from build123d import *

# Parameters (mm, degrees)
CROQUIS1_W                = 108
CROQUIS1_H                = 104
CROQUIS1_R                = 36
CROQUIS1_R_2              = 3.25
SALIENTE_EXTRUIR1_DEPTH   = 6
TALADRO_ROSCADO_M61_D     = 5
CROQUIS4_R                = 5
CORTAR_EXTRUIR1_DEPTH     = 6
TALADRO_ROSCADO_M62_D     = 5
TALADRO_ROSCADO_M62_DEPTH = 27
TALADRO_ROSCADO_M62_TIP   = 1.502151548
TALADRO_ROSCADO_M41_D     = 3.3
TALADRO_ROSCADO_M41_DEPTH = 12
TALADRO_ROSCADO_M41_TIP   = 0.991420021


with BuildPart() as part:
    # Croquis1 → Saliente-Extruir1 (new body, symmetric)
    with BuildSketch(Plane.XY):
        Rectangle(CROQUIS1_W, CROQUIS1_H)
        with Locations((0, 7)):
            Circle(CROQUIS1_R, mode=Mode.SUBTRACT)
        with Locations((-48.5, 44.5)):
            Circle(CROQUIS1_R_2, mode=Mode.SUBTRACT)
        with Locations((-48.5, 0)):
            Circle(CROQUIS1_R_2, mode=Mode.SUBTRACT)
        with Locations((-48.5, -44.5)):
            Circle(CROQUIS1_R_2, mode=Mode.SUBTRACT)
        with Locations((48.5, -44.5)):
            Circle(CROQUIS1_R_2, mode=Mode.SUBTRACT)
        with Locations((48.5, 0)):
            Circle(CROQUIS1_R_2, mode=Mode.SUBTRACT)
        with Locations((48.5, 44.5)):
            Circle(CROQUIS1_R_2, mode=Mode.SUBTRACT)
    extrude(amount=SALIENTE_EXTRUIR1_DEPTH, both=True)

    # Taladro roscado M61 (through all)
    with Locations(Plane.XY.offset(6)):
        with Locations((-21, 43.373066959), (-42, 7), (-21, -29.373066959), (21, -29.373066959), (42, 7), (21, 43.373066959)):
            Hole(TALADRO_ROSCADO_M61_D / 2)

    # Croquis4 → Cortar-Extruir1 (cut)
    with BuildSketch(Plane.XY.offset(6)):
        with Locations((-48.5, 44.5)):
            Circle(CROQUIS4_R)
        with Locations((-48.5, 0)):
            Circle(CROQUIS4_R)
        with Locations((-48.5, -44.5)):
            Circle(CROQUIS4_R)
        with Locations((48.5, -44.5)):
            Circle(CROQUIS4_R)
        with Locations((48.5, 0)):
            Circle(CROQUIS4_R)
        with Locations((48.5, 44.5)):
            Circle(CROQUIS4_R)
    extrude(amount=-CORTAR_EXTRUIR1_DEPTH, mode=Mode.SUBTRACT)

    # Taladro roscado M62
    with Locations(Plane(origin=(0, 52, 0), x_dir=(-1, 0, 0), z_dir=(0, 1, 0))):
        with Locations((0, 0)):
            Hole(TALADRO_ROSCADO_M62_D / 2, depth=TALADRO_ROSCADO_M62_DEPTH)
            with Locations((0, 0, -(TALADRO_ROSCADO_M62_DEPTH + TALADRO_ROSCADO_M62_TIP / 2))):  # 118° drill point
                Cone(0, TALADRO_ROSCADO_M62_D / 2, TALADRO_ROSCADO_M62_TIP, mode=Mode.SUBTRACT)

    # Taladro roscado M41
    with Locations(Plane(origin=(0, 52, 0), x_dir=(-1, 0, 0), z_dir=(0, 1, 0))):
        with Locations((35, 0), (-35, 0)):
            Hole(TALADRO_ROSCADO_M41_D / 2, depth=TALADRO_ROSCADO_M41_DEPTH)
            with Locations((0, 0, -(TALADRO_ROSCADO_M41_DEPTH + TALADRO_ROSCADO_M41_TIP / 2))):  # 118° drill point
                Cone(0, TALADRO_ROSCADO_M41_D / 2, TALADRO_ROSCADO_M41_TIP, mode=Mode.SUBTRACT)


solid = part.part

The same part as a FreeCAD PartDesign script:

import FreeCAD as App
import Part
import Sketcher
from FreeCAD import Vector
Q = App.Units.Quantity

doc = App.newDocument("Part")
params = doc.addObject("Spreadsheet::Sheet", "Params")
for row, (alias, value) in enumerate([
    ("sketch1_diameter", "72 mm"),
    ("sketch1_diameter2", "6.5 mm"),
    ("sketch1_width", "108 mm"),
    ("sketch1_height", "104 mm"),
    ("pad1_length", "12 mm"),
    ("sketch2_diameter", "5 mm"),
    ("hole_diameter", "5 mm"),
    ("sketch3_diameter", "10 mm"),
    ("pocket1_length", "6 mm"),
    ("sketch4_diameter", "5 mm"),
    ("hole2_diameter", "5 mm"),
    ("hole2_depth", "27 mm"),
    ("sketch5_diameter", "3.3 mm"),
    ("hole3_diameter", "3.3 mm"),
    ("hole3_depth", "12 mm"),
], start=1):
    params.set(f"A{row}", alias)
    params.set(f"B{row}", "=" + value)
    params.setAlias(f"B{row}", alias)

body = doc.addObject("PartDesign::Body", "Body")

# Sketch on XY plane
sketch1 = doc.addObject("Sketcher::SketchObject", "Sketch")
body.addObject(sketch1)
sketch1.AttachmentSupport = (doc.XY_Plane, [""])
sketch1.MapMode = "FlatFace"
sketch1.addGeometry([
    Part.LineSegment(Vector(-54, 52, 0), Vector(-54, -52, 0)),  # 0
    Part.LineSegment(Vector(-54, -52, 0), Vector(54, -52, 0)),  # 1
    Part.LineSegment(Vector(54, -52, 0), Vector(54, 52, 0)),  # 2
    Part.LineSegment(Vector(54, 52, 0), Vector(-54, 52, 0)),  # 3
    Part.Circle(Vector(-48.5, -44.5, 0), Vector(0, 0, 1), 3.2),  # 4
    Part.Circle(Vector(48.5, -44.5, 0), Vector(0, 0, 1), 3.2),  # 5
    Part.Circle(Vector(-48.5, 0, 0), Vector(0, 0, 1), 3.2),  # 6
    Part.Circle(Vector(-48.5, 44.5, 0), Vector(0, 0, 1), 3.2),  # 7
    Part.Circle(Vector(0, 7, 0), Vector(0, 0, 1), 36),  # 8
    Part.Circle(Vector(48.5, 0, 0), Vector(0, 0, 1), 3.2),  # 9
    Part.Circle(Vector(48.5, 44.5, 0), Vector(0, 0, 1), 3.2),  # 10
], False)
sketch1.addConstraint([
    Sketcher.Constraint("Coincident", 0, 2, 1, 1),
    Sketcher.Constraint("Coincident", 1, 2, 2, 1),
    Sketcher.Constraint("Coincident", 2, 2, 3, 1),
    Sketcher.Constraint("Coincident", 3, 2, 0, 1),
    Sketcher.Constraint("Vertical", 0),
    Sketcher.Constraint("Horizontal", 1),
    Sketcher.Constraint("Vertical", 2),
    Sketcher.Constraint("Horizontal", 3),
    Sketcher.Constraint("Equal", 4, 5),
    Sketcher.Constraint("Equal", 5, 6),
    Sketcher.Constraint("Equal", 6, 7),
    Sketcher.Constraint("Equal", 7, 9),
    Sketcher.Constraint("Equal", 9, 10),
    Sketcher.Constraint("Symmetric", 5, 3, 7, 3, -1, 1),
    Sketcher.Constraint("Symmetric", 6, 3, 9, 3, -1, 1),
    Sketcher.Constraint("Symmetric", 4, 3, 10, 3, -1, 1),
    Sketcher.Constraint("Symmetric", 0, 2, 2, 2, -1, 1),
    Sketcher.Constraint("Symmetric", 4, 3, 5, 3, -2),
    Sketcher.Constraint("PointOnObject", 6, 3, -1),
    Sketcher.Constraint("PointOnObject", 8, 3, -2),
    Sketcher.Constraint("Vertical", 4, 3, 6, 3),
    Sketcher.Constraint("Diameter", 8, Q("72 mm")),
    Sketcher.Constraint("Diameter", 4, Q("6.5 mm")),
    Sketcher.Constraint("DistanceX", 1, 1, 1, 2, Q("108 mm")),
    Sketcher.Constraint("DistanceY", 0, 2, 0, 1, Q("104 mm")),
    Sketcher.Constraint("DistanceY", -1, 1, 8, 3, Q("7 mm")),
    Sketcher.Constraint("DistanceX", 4, 3, 5, 3, Q("97 mm")),
    Sketcher.Constraint("DistanceY", 4, 3, 7, 3, Q("89 mm")),
])
sketch1.setExpression("Constraints[21]", "Params.sketch1_diameter")
sketch1.setExpression("Constraints[22]", "Params.sketch1_diameter2")
sketch1.setExpression("Constraints[23]", "Params.sketch1_width")
sketch1.setExpression("Constraints[24]", "Params.sketch1_height")
pad1 = doc.addObject("PartDesign::Pad", "Pad")
body.addObject(pad1)
pad1.Profile = sketch1
pad1.setExpression("Length", "Params.pad1_length")
pad1.Midplane = True

# Sketch on XY plane
sketch2 = doc.addObject("Sketcher::SketchObject", "Sketch001")
body.addObject(sketch2)
sketch2.AttachmentSupport = (doc.XY_Plane, [""])
sketch2.MapMode = "FlatFace"
sketch2.AttachmentOffset = App.Placement(Vector(0, 0, 6), App.Rotation())
sketch2.addGeometry([
    Part.Circle(Vector(-21, 43.4, 0), Vector(0, 0, 1), 2.5),  # 0
    Part.Circle(Vector(-42, 7, 0), Vector(0, 0, 1), 2.5),  # 1
    Part.Circle(Vector(-21, -29.4, 0), Vector(0, 0, 1), 2.5),  # 2
    Part.Circle(Vector(21, -29.4, 0), Vector(0, 0, 1), 2.5),  # 3
    Part.Circle(Vector(42, 7, 0), Vector(0, 0, 1), 2.5),  # 4
    Part.Circle(Vector(21, 43.4, 0), Vector(0, 0, 1), 2.5),  # 5
], False)
sketch2.addConstraint([
    Sketcher.Constraint("Equal", 0, 1),
    Sketcher.Constraint("Equal", 1, 2),
    Sketcher.Constraint("Equal", 2, 3),
    Sketcher.Constraint("Equal", 3, 4),
    Sketcher.Constraint("Equal", 4, 5),
    Sketcher.Constraint("Symmetric", 2, 3, 3, 3, -2),
    Sketcher.Constraint("Symmetric", 1, 3, 4, 3, -2),
    Sketcher.Constraint("Symmetric", 0, 3, 5, 3, -2),
    Sketcher.Constraint("Vertical", 0, 3, 2, 3),
    Sketcher.Constraint("Diameter", 0, Q("5 mm")),
    Sketcher.Constraint("DistanceX", 0, 3, -1, 1, Q("21 mm")),
    Sketcher.Constraint("DistanceX", 1, 3, -1, 1, Q("42 mm")),
    Sketcher.Constraint("DistanceY", -1, 1, 1, 3, Q("7 mm")),
    Sketcher.Constraint("DistanceY", -1, 1, 0, 3, Q("43.373067 mm")),
    Sketcher.Constraint("DistanceY", 2, 3, -1, 1, Q("29.373067 mm")),
])
sketch2.setExpression("Constraints[9]", "Params.sketch2_diameter")
doc.recompute()
hole = doc.addObject("PartDesign::Hole", "Hole")
body.addObject(hole)
hole.Profile = sketch2
hole.ThreadType = "None"
hole.setExpression("Diameter", "Params.hole_diameter")
hole.DepthType = "ThroughAll"

# Sketch on XY plane
sketch3 = doc.addObject("Sketcher::SketchObject", "Sketch002")
body.addObject(sketch3)
sketch3.AttachmentSupport = (doc.XY_Plane, [""])
sketch3.MapMode = "FlatFace"
sketch3.AttachmentOffset = App.Placement(Vector(0, 0, 6), App.Rotation())
sketch3.addGeometry([
    Part.Circle(Vector(-48, 44, 0), Vector(0, 0, 1), 5),  # 0
    Part.Circle(Vector(-48, 0, 0), Vector(0, 0, 1), 5),  # 1
    Part.Circle(Vector(-48, -44, 0), Vector(0, 0, 1), 5),  # 2
    Part.Circle(Vector(48, -44, 0), Vector(0, 0, 1), 5),  # 3
    Part.Circle(Vector(48, 0, 0), Vector(0, 0, 1), 5),  # 4
    Part.Circle(Vector(48, 44, 0), Vector(0, 0, 1), 5),  # 5
], False)
sketch3.addConstraint([
    Sketcher.Constraint("Equal", 0, 1),
    Sketcher.Constraint("Equal", 1, 2),
    Sketcher.Constraint("Equal", 2, 3),
    Sketcher.Constraint("Equal", 3, 4),
    Sketcher.Constraint("Equal", 4, 5),
    Sketcher.Constraint("Symmetric", 0, 3, 3, 3, -1, 1),
    Sketcher.Constraint("Symmetric", 1, 3, 4, 3, -1, 1),
    Sketcher.Constraint("Symmetric", 2, 3, 5, 3, -1, 1),
    Sketcher.Constraint("Symmetric", 2, 3, 3, 3, -2),
    Sketcher.Constraint("PointOnObject", 1, 3, -1),
    Sketcher.Constraint("Vertical", 0, 3, 1, 3),
    Sketcher.Constraint("Diameter", 0, Q("10 mm")),
    Sketcher.Constraint("DistanceY", 2, 3, 0, 3, Q("89 mm")),
    Sketcher.Constraint("DistanceX", 2, 3, 3, 3, Q("97 mm")),
])
sketch3.setExpression("Constraints[11]", "Params.sketch3_diameter")
pocket1 = doc.addObject("PartDesign::Pocket", "Pocket")
body.addObject(pocket1)
pocket1.Profile = sketch3
pocket1.setExpression("Length", "Params.pocket1_length")

# Sketch on XZ plane
sketch4 = doc.addObject("Sketcher::SketchObject", "Sketch003")
body.addObject(sketch4)
sketch4.AttachmentSupport = (doc.XZ_Plane, [""])
sketch4.MapMode = "FlatFace"
sketch4.AttachmentOffset = App.Placement(Vector(0, 0, -52), App.Rotation())
sketch4.addGeometry(Part.Circle(Vector(0, 0, 0), Vector(0, 0, 1), 2.5), False)
sketch4.addConstraint([
    Sketcher.Constraint("Coincident", 0, 3, -1, 1),
    Sketcher.Constraint("Diameter", 0, Q("5 mm")),
])
sketch4.setExpression("Constraints[1]", "Params.sketch4_diameter")
doc.recompute()
hole2 = doc.addObject("PartDesign::Hole", "Hole001")
body.addObject(hole2)
hole2.Profile = sketch4
hole2.ThreadType = "None"
hole2.setExpression("Diameter", "Params.hole2_diameter")
hole2.DepthType = "Dimension"
hole2.setExpression("Depth", "Params.hole2_depth")
hole2.DrillPoint = "Angled"
hole2.DrillPointAngle = 118
hole2.Reversed = True

# Sketch on XZ plane
sketch5 = doc.addObject("Sketcher::SketchObject", "Sketch004")
body.addObject(sketch5)
sketch5.AttachmentSupport = (doc.XZ_Plane, [""])
sketch5.MapMode = "FlatFace"
sketch5.AttachmentOffset = App.Placement(Vector(0, 0, -52), App.Rotation())
sketch5.addGeometry([
    Part.Circle(Vector(-35, 0, 0), Vector(0, 0, 1), 1.6),
    Part.Circle(Vector(35, 0, 0), Vector(0, 0, 1), 1.6),
], False)
sketch5.addConstraint([
    Sketcher.Constraint("Equal", 0, 1),
    Sketcher.Constraint("Symmetric", 0, 3, 1, 3, -1, 1),
    Sketcher.Constraint("PointOnObject", 0, 3, -1),
    Sketcher.Constraint("Diameter", 0, Q("3.3 mm")),
    Sketcher.Constraint("DistanceX", 0, 3, -1, 1, Q("35 mm")),
])
sketch5.setExpression("Constraints[3]", "Params.sketch5_diameter")
doc.recompute()
hole3 = doc.addObject("PartDesign::Hole", "Hole002")
body.addObject(hole3)
hole3.Profile = sketch5
hole3.ThreadType = "None"
hole3.setExpression("Diameter", "Params.hole3_diameter")
hole3.DepthType = "Dimension"
hole3.setExpression("Depth", "Params.hole3_depth")
hole3.DrillPoint = "Angled"
hole3.DrillPointAngle = 118
hole3.Reversed = True

doc.recompute()
